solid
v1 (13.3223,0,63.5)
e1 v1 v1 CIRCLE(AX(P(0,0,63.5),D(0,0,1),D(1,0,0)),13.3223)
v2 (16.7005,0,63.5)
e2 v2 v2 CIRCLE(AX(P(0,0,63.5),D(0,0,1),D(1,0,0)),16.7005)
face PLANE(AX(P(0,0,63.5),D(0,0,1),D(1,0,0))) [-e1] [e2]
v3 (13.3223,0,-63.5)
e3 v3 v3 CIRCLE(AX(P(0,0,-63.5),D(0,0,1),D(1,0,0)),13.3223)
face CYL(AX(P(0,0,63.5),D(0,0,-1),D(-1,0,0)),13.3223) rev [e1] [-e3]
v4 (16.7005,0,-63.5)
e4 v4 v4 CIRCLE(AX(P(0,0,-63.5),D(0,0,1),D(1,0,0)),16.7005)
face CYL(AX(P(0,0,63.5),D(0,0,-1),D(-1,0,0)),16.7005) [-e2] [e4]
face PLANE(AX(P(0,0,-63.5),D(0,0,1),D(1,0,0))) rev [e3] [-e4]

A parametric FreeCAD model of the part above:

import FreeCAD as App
import Part
import Sketcher
Q = App.Units.Quantity

doc = App.newDocument("Part")
body = doc.addObject("PartDesign::Body", "Body")

# Sketch on XY plane
sketch1 = body.newObject("Sketcher::SketchObject", "Sketch")
sketch1.AttachmentSupport = (doc.getObject("XY_Plane"), [""])
sketch1.MapMode = "FlatFace"
sketch1.addGeometry([
    Part.Circle(App.Vector(0, 0, 0), App.Vector(0, 0, 1), 17),
    Part.Circle(App.Vector(0, 0, 0), App.Vector(0, 0, 1), 13),
], False)
sketch1.addConstraint([
    Sketcher.Constraint("Coincident", 0, 3, -1, 1),
    Sketcher.Constraint("Coincident", 1, 3, -1, 1),
    Sketcher.Constraint("Diameter", 0, Q("1.315 in")),
    Sketcher.Constraint("Diameter", 1, Q("1.049 in")),
])
pad1 = body.newObject("PartDesign::Pad", "Pad")
pad1.Profile = sketch1
pad1.Length = Q("5 in")
pad1.Midplane = True

doc.recompute()
